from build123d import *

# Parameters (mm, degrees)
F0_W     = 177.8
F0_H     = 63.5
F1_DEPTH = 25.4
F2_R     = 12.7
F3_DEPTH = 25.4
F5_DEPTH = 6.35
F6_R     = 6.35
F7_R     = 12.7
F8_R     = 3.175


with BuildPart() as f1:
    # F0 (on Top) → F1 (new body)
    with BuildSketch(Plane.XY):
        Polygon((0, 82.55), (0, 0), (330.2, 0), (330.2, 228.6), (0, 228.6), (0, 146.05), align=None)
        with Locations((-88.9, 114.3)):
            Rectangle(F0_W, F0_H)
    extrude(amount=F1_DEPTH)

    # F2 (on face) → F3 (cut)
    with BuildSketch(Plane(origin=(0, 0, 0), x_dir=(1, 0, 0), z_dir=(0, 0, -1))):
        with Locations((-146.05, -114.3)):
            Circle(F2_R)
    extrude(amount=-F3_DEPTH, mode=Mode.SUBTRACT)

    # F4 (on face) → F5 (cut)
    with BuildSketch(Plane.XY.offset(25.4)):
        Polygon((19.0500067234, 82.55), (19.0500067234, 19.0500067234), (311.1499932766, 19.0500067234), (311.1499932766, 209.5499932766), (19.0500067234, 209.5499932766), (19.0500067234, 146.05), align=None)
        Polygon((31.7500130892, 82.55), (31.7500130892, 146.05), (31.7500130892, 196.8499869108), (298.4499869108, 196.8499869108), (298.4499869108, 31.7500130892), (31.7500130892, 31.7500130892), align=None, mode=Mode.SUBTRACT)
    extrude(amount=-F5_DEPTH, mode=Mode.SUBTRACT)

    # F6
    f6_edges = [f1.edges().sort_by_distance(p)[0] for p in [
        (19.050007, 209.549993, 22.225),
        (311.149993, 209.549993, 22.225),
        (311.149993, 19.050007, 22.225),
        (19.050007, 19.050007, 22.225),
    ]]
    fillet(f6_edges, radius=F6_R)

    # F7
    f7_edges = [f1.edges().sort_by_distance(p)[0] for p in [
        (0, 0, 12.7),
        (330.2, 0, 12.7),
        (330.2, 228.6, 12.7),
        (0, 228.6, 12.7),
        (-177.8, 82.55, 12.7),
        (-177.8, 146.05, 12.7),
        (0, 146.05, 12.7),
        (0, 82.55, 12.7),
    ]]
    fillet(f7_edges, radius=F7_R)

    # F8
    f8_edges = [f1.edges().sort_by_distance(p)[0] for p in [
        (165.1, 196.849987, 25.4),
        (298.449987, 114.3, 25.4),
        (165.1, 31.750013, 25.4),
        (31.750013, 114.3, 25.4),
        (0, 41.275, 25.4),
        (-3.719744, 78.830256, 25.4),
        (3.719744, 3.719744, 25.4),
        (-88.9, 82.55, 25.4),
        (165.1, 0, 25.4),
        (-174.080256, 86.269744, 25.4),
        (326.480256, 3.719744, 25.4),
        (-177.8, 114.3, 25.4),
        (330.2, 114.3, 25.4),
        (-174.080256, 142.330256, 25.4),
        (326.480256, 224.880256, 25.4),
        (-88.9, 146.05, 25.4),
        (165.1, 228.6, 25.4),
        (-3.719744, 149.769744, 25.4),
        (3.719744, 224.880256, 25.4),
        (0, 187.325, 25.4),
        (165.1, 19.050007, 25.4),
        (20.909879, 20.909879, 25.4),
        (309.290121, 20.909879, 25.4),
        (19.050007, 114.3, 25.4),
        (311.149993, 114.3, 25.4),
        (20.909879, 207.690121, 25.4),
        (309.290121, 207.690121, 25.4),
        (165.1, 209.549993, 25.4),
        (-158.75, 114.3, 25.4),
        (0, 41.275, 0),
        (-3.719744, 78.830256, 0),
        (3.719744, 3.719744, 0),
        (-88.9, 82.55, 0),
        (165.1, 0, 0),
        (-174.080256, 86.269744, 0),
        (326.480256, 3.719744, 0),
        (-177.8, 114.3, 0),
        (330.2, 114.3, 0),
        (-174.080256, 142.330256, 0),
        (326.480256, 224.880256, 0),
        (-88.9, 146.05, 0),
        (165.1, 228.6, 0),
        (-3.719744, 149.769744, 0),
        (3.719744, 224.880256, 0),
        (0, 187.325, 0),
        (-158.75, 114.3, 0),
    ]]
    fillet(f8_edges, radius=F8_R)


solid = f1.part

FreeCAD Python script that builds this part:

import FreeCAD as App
import Part
import Sketcher
Q = App.Units.Quantity


def edges_at(feature, points):
    """Names of the edges that pass closest to the given points."""
    edges = feature.Shape.Edges
    near = lambda p: min(range(len(edges)), key=lambda i: edges[i].distToShape(Part.Vertex(*p))[0])
    return sorted({f"Edge{near(p) + 1}" for p in points})


def add_polygon(sketch, points):
    """Adds a closed chain of lines whose ends are joined by coincident constraints."""
    first, n = sketch.GeometryCount, len(points)
    for a, b in zip(points, points[1:] + points[:1]):
        sketch.addGeometry(Part.LineSegment(App.Vector(*a, 0), App.Vector(*b, 0)), False)
    for i in range(n):
        sketch.addConstraint(Sketcher.Constraint("Coincident", first + i, 2, first + (i + 1) % n, 1))

doc = App.newDocument("Part")
body = doc.addObject("PartDesign::Body", "Body")

sketch1 = doc.addObject("Sketcher::SketchObject", "Sketch")
body.addObject(sketch1)
sketch1.AttachmentSupport = (doc.XY_Plane, [""])
sketch1.MapMode = "FlatFace"
add_polygon(sketch1, [(0, 0), (330, 0), (330, 229), (0, 229), (0, 146), (-178, 146), (-178, 83), (0, 83)])
sketch1.addConstraint([
    Sketcher.Constraint("Horizontal", 0),
    Sketcher.Constraint("Vertical", 1),
    Sketcher.Constraint("Horizontal", 2),
    Sketcher.Constraint("Vertical", 3),
    Sketcher.Constraint("Horizontal", 4),
    Sketcher.Constraint("Vertical", 5),
    Sketcher.Constraint("Horizontal", 6),
    Sketcher.Constraint("Vertical", 7),
    Sketcher.Constraint("Coincident", 7, 2, -1, 1),
    Sketcher.Constraint("PointOnObject", 2, 2, -2),
    Sketcher.Constraint("Equal", 3, 7),
    Sketcher.Constraint("DistanceX", 0, 1, 0, 2, Q("13 in")),
    Sketcher.Constraint("DistanceX", 4, 2, 4, 1, Q("7 in")),
    Sketcher.Constraint("DistanceY", 1, 1, 1, 2, Q("9 in")),
    Sketcher.Constraint("DistanceY", 5, 2, 5, 1, Q("2.5 in")),
])
pad1 = doc.addObject("PartDesign::Pad", "Pad")
body.addObject(pad1)
pad1.Profile = sketch1
pad1.Length = Q("1 in")

sketch2 = doc.addObject("Sketcher::SketchObject", "Sketch001")
body.addObject(sketch2)
sketch2.AttachmentSupport = (doc.XY_Plane, [""])
sketch2.MapMode = "FlatFace"
sketch2.addGeometry(Part.Circle(App.Vector(-146, 114, 0), App.Vector(0, 0, 1), 13), False)
sketch2.addConstraint([
    Sketcher.Constraint("Diameter", 0, Q("1 in")),
    Sketcher.Constraint("DistanceY", -1, 1, 0, 3, Q("4.5 in")),
    Sketcher.Constraint("DistanceX", 0, 3, -1, 1, Q("5.75 in")),
])
pocket1 = doc.addObject("PartDesign::Pocket", "Pocket")
body.addObject(pocket1)
pocket1.Profile = sketch2
pocket1.Length = Q("1 in")
pocket1.Reversed = True

sketch3 = doc.addObject("Sketcher::SketchObject", "Sketch002")
body.addObject(sketch3)
sketch3.AttachmentSupport = (doc.XY_Plane, [""])
sketch3.MapMode = "FlatFace"
sketch3.AttachmentOffset = App.Placement(App.Vector(0, 0, 1 * 25.4), App.Rotation())
add_polygon(sketch3, [(19, 19), (311, 19), (311, 210), (19, 210)])
add_polygon(sketch3, [(32, 32), (32, 197), (298, 197), (298, 32)])
sketch3.addConstraint([
    Sketcher.Constraint("Horizontal", 0),
    Sketcher.Constraint("Vertical", 1),
    Sketcher.Constraint("Horizontal", 2),
    Sketcher.Constraint("Vertical", 3),
    Sketcher.Constraint("Vertical", 4),
    Sketcher.Constraint("Horizontal", 5),
    Sketcher.Constraint("Vertical", 6),
    Sketcher.Constraint("Horizontal", 7),
    Sketcher.Constraint("DistanceX", 0, 1, 0, 2, 292.099987),
    Sketcher.Constraint("DistanceX", 5, 1, 5, 2, 266.699974),
    Sketcher.Constraint("DistanceY", 1, 1, 1, 2, 190.499987),
    Sketcher.Constraint("DistanceY", 4, 1, 4, 2, 165.099974),
    Sketcher.Constraint("DistanceY", 3, 2, 4, 2, 177.79998),
    Sketcher.Constraint("DistanceX", 4, 2, 1, 2, 279.39998),
    Sketcher.Constraint("DistanceX", -1, 1, 0, 2, 311.149993),
    Sketcher.Constraint("DistanceY", -1, 1, 0, 2, 19.050007),
])
pocket2 = doc.addObject("PartDesign::Pocket", "Pocket001")
body.addObject(pocket2)
pocket2.Profile = sketch3
pocket2.Length = Q("0.25 in")
doc.recompute()

fillet = doc.addObject("PartDesign::Fillet", "Fillet")
body.addObject(fillet)
fillet.Base = (pocket2, edges_at(pocket2, [
    (19.05, 209.55, 22.225),
    (311.15, 209.55, 22.225),
    (311.15, 19.05, 22.225),
    (19.05, 19.05, 22.225),
]))
fillet.Radius = Q("0.25 in")
doc.recompute()

fillet2 = doc.addObject("PartDesign::Fillet", "Fillet001")
body.addObject(fillet2)
fillet2.Base = (fillet, edges_at(fillet, [
    (0, 0, 12.7),
    (330.2, 0, 12.7),
    (330.2, 228.6, 12.7),
    (0, 228.6, 12.7),
    (-177.8, 82.55, 12.7),
    (-177.8, 146.05, 12.7),
    (0, 146.05, 12.7),
    (0, 82.55, 12.7),
]))
fillet2.Radius = Q("0.5 in")
doc.recompute()

fillet3 = doc.addObject("PartDesign::Fillet", "Fillet002")
body.addObject(fillet3)
fillet3.Base = (fillet2, edges_at(fillet2, [
    (165.1, 196.85, 25.4),
    (298.45, 114.3, 25.4),
    (165.1, 31.75, 25.4),
    (31.75, 114.3, 25.4),
    (0, 41.275, 25.4),
    (-3.72, 78.83, 25.4),
    (3.72, 3.72, 25.4),
    (-88.9, 82.55, 25.4),
    (165.1, 0, 25.4),
    (-174.08, 86.27, 25.4),
    (326.48, 3.72, 25.4),
    (-177.8, 114.3, 25.4),
    (330.2, 114.3, 25.4),
    (-174.08, 142.33, 25.4),
    (326.48, 224.88, 25.4),
    (-88.9, 146.05, 25.4),
    (165.1, 228.6, 25.4),
    (-3.72, 149.77, 25.4),
    (3.72, 224.88, 25.4),
    (0, 187.325, 25.4),
    (165.1, 19.05, 25.4),
    (20.91, 20.91, 25.4),
    (309.29, 20.91, 25.4),
    (19.05, 114.3, 25.4),
    (311.15, 114.3, 25.4),
    (20.91, 207.69, 25.4),
    (309.29, 207.69, 25.4),
    (165.1, 209.55, 25.4),
    (-158.75, 114.3, 25.4),
    (0, 41.275, 0),
    (-3.72, 78.83, 0),
    (3.72, 3.72, 0),
    (-88.9, 82.55, 0),
    (165.1, 0, 0),
    (-174.08, 86.27, 0),
    (326.48, 3.72, 0),
    (-177.8, 114.3, 0),
    (330.2, 114.3, 0),
    (-174.08, 142.33, 0),
    (326.48, 224.88, 0),
    (-88.9, 146.05, 0),
    (165.1, 228.6, 0),
    (-3.72, 149.77, 0),
    (3.72, 224.88, 0),
    (0, 187.325, 0),
    (-158.75, 114.3, 0),
]))
fillet3.Radius = Q("0.125 in")

doc.recompute()
